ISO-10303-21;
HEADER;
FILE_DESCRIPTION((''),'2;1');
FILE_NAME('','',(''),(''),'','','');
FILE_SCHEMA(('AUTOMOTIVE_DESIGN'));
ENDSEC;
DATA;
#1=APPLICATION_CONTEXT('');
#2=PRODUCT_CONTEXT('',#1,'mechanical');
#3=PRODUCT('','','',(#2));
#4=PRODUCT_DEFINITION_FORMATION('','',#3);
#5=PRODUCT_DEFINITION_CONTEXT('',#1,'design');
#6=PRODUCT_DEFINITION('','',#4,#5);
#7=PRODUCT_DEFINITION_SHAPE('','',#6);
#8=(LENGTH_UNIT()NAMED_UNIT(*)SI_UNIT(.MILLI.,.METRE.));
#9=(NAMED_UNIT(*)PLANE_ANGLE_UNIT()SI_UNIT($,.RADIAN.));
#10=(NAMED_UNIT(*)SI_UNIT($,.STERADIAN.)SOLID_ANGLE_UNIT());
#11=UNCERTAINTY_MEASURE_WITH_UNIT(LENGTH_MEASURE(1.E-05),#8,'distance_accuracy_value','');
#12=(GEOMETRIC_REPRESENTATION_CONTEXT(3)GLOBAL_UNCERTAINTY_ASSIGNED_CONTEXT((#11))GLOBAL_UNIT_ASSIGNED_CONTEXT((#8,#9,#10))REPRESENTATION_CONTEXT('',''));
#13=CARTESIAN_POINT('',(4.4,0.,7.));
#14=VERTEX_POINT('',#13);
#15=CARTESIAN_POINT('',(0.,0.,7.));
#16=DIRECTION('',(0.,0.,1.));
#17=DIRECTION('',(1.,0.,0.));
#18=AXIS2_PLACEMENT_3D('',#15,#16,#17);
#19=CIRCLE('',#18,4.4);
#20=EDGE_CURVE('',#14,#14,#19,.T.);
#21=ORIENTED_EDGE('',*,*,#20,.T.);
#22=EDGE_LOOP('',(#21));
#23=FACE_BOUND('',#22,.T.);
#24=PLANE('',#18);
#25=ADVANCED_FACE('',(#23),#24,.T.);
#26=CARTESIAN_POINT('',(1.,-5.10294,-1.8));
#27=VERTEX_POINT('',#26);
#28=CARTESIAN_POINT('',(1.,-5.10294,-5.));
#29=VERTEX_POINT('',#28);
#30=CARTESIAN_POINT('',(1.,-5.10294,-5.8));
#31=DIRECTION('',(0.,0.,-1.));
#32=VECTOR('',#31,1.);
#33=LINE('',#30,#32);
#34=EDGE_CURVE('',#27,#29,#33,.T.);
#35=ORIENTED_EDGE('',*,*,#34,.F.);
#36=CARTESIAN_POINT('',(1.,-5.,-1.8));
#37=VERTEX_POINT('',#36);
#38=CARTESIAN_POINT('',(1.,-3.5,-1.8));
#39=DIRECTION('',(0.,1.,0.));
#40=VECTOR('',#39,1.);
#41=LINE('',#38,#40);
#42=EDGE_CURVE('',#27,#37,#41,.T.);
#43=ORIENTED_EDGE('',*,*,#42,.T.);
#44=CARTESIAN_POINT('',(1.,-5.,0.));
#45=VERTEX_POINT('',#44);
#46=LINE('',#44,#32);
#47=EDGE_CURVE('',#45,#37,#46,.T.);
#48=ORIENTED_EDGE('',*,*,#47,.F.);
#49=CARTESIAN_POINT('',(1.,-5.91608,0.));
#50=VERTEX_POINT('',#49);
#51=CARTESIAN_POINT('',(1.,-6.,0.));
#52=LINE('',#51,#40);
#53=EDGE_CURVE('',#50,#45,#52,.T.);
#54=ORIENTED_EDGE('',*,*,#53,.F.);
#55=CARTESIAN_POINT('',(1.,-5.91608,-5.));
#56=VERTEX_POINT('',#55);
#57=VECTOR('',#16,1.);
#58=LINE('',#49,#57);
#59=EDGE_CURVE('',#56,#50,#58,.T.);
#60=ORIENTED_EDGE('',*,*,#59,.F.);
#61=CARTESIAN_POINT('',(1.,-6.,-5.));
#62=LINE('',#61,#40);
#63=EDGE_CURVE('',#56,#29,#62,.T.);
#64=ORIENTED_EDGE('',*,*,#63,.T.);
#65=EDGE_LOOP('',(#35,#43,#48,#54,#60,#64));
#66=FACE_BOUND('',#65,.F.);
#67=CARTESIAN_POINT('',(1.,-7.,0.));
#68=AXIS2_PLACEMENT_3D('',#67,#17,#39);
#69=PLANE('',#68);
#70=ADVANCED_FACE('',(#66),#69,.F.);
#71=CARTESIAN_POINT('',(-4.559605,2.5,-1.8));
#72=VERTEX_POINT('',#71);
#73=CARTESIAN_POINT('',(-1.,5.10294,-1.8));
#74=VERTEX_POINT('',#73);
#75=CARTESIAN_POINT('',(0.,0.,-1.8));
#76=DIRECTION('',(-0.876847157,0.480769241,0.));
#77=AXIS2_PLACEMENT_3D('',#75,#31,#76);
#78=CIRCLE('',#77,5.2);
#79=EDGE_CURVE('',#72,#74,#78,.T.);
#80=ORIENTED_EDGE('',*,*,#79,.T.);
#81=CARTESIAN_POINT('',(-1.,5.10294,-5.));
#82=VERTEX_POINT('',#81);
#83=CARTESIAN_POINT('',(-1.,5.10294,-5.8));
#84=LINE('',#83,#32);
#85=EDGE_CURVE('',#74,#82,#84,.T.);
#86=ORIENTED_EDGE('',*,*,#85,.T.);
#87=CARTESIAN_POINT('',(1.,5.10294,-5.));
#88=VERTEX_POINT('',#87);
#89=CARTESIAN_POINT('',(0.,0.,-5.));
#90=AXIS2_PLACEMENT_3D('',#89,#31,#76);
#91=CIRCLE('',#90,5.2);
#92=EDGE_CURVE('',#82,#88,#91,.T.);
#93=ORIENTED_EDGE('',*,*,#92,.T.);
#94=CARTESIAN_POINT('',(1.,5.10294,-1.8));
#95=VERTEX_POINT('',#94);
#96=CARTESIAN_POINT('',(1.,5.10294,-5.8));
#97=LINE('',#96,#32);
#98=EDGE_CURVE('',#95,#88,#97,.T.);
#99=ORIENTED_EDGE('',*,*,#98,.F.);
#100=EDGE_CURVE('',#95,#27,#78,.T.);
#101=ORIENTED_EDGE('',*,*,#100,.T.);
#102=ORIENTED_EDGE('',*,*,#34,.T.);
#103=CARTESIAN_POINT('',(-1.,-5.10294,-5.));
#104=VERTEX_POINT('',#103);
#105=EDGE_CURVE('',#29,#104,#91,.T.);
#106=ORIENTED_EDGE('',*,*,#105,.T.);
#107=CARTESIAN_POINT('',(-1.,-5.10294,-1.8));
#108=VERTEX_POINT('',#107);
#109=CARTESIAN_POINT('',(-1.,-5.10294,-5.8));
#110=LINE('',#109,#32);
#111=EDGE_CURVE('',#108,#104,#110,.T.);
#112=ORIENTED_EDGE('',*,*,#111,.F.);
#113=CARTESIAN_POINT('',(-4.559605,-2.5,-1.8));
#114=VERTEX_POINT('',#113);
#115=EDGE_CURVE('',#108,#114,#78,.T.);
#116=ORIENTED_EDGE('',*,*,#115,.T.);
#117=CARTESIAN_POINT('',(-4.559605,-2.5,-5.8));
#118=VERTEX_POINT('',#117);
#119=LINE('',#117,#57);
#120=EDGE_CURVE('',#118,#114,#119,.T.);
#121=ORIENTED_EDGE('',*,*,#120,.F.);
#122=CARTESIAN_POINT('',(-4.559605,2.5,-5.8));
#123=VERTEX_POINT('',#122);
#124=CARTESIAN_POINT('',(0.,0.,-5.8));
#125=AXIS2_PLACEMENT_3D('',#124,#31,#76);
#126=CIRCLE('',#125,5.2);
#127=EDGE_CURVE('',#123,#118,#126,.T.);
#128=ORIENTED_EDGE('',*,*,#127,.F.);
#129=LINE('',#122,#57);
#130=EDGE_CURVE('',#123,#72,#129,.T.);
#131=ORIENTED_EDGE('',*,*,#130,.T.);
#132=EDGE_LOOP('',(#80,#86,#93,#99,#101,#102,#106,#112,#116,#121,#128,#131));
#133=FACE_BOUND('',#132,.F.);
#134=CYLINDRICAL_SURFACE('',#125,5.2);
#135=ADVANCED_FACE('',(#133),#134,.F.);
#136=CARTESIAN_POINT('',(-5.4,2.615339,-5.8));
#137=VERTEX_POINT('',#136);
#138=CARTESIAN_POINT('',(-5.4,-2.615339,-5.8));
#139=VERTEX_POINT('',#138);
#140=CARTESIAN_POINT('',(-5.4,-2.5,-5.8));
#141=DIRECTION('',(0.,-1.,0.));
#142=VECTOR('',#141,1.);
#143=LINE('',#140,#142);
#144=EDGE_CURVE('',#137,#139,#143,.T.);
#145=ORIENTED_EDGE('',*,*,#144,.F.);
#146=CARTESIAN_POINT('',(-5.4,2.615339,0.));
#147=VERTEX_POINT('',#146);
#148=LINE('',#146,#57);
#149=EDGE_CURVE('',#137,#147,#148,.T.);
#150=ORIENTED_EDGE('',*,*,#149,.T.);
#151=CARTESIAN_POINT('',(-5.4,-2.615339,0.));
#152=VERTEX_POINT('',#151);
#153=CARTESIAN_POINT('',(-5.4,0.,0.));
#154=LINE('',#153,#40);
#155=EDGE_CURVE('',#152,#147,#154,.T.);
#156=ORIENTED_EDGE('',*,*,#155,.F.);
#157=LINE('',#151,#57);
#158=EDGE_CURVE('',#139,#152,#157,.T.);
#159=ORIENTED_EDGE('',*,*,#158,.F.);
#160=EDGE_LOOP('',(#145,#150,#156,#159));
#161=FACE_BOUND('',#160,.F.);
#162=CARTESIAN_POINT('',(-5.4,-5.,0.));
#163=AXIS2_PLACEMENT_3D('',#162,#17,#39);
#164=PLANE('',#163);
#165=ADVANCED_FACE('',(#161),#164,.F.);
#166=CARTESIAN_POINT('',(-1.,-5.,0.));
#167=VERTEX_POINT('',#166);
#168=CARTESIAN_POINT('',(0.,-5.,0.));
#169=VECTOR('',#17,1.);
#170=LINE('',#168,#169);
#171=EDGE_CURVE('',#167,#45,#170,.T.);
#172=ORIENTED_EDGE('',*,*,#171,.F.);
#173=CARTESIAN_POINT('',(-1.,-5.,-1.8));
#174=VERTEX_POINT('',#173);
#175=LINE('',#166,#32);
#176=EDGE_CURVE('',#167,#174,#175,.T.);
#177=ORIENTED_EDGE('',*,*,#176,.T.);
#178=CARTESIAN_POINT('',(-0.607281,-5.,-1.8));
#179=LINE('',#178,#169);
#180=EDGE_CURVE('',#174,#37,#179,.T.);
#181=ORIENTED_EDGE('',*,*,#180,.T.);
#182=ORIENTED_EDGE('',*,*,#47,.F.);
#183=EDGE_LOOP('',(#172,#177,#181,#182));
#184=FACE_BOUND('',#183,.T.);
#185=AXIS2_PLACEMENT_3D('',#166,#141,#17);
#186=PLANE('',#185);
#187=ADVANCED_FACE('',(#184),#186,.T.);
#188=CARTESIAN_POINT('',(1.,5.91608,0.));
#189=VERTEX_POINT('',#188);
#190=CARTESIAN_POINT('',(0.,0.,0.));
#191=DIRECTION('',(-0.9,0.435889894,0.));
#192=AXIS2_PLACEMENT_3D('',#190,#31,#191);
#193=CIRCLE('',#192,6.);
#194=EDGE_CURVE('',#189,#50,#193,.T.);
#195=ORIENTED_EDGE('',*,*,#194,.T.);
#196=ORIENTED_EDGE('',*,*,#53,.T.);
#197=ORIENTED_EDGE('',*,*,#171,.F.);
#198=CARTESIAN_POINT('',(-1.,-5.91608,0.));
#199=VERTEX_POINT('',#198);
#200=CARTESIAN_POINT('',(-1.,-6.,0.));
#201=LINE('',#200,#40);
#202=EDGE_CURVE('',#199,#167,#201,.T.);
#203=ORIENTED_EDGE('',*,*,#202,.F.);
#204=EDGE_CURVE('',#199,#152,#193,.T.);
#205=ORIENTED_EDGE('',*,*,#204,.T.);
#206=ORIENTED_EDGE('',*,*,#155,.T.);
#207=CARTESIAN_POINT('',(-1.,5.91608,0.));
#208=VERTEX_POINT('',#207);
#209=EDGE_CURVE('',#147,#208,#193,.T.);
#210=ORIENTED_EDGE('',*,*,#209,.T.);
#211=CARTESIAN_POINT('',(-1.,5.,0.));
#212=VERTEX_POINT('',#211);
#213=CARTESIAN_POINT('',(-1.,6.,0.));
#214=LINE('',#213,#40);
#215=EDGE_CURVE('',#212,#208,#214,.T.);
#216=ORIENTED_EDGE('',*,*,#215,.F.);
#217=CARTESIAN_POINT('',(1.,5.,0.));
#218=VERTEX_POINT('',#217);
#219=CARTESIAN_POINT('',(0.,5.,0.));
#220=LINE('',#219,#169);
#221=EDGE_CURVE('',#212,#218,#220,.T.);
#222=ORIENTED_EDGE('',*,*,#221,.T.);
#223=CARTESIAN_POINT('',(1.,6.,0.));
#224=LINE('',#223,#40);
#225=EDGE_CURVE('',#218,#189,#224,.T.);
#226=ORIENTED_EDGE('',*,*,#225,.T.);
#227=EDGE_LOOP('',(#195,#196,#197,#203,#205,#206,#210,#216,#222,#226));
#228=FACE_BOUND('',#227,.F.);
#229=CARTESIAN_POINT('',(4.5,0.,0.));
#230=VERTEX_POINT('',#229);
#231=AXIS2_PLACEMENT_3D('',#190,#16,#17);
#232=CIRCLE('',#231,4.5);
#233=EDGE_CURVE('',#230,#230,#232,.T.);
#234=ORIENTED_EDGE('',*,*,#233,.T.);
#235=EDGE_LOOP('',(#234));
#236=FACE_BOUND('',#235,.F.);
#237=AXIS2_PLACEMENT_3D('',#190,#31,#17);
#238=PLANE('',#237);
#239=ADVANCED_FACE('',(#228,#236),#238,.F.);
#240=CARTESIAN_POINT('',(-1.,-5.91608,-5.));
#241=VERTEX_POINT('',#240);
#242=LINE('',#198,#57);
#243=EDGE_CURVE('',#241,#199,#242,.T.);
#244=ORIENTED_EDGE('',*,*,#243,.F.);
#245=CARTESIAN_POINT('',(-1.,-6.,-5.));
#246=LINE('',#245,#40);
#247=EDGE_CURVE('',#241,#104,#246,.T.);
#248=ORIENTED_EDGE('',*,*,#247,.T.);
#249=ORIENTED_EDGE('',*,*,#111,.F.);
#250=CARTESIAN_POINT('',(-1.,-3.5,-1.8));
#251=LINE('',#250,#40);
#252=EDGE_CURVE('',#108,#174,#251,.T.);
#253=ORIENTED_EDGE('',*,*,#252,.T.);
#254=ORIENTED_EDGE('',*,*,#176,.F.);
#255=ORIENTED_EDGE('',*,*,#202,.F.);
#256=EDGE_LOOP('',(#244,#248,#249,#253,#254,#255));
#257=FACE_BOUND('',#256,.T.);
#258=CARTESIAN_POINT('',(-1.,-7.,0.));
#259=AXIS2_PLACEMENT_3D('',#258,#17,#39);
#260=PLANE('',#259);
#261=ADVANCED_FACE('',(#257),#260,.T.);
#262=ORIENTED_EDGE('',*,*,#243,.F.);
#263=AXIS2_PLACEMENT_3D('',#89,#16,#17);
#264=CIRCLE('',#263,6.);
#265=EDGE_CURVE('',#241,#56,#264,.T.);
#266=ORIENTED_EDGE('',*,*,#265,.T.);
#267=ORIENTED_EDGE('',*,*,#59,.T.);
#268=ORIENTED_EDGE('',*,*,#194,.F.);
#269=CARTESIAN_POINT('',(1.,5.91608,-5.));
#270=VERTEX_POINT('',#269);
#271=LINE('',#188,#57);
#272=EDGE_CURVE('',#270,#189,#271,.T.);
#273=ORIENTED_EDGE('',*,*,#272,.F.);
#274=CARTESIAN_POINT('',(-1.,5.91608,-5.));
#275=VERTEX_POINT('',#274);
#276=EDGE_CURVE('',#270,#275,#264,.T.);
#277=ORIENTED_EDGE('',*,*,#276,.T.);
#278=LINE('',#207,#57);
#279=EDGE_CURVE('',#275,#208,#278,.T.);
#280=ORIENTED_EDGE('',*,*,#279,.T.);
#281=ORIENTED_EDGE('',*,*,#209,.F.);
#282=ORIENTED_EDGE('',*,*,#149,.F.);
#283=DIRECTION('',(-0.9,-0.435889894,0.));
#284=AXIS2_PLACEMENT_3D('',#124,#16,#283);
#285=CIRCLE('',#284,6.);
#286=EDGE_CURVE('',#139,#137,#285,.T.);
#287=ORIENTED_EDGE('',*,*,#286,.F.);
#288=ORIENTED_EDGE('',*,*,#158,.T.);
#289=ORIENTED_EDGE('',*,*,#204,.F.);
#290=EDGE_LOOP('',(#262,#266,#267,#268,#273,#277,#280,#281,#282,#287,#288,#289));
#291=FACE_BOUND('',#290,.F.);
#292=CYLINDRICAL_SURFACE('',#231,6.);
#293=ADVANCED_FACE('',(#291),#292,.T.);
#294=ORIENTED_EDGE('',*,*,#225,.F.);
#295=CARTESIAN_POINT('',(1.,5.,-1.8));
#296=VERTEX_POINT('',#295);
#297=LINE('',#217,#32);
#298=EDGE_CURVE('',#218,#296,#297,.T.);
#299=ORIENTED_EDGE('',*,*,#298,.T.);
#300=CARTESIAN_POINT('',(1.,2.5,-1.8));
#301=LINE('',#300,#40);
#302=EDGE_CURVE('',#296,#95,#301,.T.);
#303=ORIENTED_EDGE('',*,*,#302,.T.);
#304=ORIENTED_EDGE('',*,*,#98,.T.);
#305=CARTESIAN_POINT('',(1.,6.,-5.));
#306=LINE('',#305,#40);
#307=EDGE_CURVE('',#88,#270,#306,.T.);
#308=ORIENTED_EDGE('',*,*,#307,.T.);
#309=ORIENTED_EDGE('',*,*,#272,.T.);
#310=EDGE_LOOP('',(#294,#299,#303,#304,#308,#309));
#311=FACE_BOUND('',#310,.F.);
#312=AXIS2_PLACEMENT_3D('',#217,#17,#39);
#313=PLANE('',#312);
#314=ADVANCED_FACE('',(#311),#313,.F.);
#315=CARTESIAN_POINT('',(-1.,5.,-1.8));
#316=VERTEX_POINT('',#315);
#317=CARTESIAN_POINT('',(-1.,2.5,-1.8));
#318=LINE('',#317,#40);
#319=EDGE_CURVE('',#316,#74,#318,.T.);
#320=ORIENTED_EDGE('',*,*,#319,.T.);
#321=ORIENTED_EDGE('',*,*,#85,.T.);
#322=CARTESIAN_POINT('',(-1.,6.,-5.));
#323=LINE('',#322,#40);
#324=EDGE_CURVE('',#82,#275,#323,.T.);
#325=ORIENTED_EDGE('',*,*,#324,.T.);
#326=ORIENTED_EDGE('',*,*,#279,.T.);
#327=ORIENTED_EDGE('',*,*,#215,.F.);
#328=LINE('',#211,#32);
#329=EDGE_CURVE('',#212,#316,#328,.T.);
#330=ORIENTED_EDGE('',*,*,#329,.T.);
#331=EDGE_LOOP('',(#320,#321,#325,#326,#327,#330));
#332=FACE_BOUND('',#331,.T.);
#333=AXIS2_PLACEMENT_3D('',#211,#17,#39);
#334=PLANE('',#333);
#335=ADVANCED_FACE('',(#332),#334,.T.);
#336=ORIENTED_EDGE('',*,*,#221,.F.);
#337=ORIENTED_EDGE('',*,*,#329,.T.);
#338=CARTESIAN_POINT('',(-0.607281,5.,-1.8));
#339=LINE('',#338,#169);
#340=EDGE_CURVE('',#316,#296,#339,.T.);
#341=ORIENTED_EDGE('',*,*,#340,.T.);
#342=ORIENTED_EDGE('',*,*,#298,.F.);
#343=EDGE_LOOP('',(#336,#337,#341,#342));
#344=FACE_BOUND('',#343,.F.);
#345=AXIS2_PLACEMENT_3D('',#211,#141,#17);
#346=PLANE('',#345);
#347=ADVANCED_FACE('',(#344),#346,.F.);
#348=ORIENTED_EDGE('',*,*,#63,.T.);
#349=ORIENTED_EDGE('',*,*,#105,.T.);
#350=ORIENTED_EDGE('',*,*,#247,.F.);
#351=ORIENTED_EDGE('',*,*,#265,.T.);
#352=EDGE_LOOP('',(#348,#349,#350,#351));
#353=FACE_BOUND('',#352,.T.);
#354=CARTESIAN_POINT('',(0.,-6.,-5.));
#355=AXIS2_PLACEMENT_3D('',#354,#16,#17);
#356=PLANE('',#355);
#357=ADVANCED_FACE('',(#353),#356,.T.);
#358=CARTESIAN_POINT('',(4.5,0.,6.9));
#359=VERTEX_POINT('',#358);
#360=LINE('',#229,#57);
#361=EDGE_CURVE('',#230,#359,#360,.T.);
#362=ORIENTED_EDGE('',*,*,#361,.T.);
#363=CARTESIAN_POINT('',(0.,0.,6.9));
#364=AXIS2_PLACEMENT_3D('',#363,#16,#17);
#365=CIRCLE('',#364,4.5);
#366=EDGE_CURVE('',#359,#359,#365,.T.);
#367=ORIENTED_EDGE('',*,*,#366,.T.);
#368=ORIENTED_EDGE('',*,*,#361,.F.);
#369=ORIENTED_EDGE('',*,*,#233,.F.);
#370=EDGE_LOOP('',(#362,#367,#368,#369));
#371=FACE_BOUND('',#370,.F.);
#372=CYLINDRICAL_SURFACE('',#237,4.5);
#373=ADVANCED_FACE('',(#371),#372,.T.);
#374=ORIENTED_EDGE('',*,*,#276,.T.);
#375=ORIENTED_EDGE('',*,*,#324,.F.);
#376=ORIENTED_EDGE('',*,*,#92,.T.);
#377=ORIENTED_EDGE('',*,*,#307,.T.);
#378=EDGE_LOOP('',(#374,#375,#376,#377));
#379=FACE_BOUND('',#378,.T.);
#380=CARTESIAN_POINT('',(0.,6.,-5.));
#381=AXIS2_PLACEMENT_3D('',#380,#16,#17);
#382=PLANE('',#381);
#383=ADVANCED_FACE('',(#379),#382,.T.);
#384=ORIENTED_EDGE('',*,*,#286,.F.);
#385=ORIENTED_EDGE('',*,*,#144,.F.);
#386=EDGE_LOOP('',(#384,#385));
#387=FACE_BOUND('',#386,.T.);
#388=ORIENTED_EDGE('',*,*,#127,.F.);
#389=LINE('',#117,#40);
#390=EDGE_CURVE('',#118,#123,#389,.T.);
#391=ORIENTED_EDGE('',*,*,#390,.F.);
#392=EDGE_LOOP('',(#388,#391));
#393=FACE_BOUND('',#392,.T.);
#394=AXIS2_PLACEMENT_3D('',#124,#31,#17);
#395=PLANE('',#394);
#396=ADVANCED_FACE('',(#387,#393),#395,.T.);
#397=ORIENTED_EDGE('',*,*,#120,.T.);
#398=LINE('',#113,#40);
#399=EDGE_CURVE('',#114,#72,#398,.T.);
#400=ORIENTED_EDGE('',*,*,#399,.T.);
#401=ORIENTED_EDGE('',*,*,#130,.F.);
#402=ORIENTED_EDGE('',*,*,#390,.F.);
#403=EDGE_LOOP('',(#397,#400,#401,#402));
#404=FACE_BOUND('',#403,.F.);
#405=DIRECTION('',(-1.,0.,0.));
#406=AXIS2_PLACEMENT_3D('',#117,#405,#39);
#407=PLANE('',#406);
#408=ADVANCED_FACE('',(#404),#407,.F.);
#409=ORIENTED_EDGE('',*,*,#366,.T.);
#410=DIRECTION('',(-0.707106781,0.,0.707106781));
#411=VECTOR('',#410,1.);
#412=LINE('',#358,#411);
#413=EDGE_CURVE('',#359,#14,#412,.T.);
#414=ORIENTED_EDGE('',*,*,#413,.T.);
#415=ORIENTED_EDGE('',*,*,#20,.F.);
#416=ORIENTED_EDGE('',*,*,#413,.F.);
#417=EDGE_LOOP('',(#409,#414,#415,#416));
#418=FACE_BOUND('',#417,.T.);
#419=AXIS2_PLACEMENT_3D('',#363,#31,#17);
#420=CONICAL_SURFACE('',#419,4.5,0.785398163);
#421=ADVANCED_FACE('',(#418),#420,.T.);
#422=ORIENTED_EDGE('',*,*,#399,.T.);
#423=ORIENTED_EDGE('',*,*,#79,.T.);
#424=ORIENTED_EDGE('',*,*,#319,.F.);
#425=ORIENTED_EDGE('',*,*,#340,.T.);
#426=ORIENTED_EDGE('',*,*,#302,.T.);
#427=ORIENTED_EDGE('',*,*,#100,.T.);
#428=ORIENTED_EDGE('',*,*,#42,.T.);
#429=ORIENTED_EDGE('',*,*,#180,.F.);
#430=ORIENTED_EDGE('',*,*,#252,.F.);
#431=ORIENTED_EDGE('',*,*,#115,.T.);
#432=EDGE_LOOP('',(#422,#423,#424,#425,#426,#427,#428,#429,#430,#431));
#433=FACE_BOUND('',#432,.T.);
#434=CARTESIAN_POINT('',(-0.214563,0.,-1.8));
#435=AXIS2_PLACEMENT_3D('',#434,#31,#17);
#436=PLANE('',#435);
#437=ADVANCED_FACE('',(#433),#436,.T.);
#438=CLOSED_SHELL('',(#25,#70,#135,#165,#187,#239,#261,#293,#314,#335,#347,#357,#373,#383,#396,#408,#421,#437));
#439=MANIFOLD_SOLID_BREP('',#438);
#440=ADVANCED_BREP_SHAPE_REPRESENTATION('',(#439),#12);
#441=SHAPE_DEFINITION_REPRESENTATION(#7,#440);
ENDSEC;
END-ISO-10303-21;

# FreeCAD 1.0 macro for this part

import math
import FreeCAD as App
import Part
import Sketcher

V = App.Vector


def edges_at(feature, points):
    """Names of the edges that pass closest to the given points."""
    edges = feature.Shape.Edges
    near = lambda p: min(range(len(edges)), key=lambda i: edges[i].distToShape(Part.Vertex(*p))[0])
    return sorted({f"Edge{near(p) + 1}" for p in points})


def add_polygon(sketch, points):
    """Adds a closed chain of lines whose ends are joined by coincident constraints."""
    first, n = sketch.GeometryCount, len(points)
    for a, b in zip(points, points[1:] + points[:1]):
        sketch.addGeometry(Part.LineSegment(App.Vector(*a, 0), App.Vector(*b, 0)), False)
    for i in range(n):
        sketch.addConstraint(Sketcher.Constraint("Coincident", first + i, 2, first + (i + 1) % n, 1))

doc = App.newDocument("Part")
body = doc.addObject("PartDesign::Body", "Body")

# Sketch on XY plane
sketch1 = body.newObject("Sketcher::SketchObject", "Sketch")
sketch1.AttachmentSupport = (doc.getObject("XY_Plane"), [""])
sketch1.MapMode = "FlatFace"
sketch1.addGeometry(Part.Circle(V(0, 0, 0), V(0, 0, 1), 4.5), False)
sketch1.addConstraint([
    Sketcher.Constraint("Coincident", 0, 3, -1, 1),
    Sketcher.Constraint("Diameter", 0, 9.0),
])
pad1 = body.newObject("PartDesign::Pad", "Pad")
pad1.Profile = sketch1
pad1.Length = 7

# Sketch on XY plane
sketch2 = body.newObject("Sketcher::SketchObject", "Sketch001")
sketch2.AttachmentSupport = (doc.getObject("XY_Plane"), [""])
sketch2.MapMode = "FlatFace"
sketch2.addGeometry(Part.Circle(V(0, 0, 0), V(0, 0, 1), 6), False)
sketch2.addConstraint([
    Sketcher.Constraint("Coincident", 0, 3, -1, 1),
    Sketcher.Constraint("Diameter", 0, 12.0),
])
pad2 = body.newObject("PartDesign::Pad", "Pad001")
pad2.Profile = sketch2
pad2.Length = 5.8
pad2.Reversed = True

# Sketch on XY plane
sketch3 = body.newObject("Sketcher::SketchObject", "Sketch002")
sketch3.AttachmentSupport = (doc.getObject("XY_Plane"), [""])
sketch3.MapMode = "FlatFace"
add_polygon(sketch3, [(-7.4, 5), (-7.4, -5), (-5.4, -5), (-5.4, 5)])  # lines 0-3
sketch3.addConstraint([
    Sketcher.Constraint("Vertical", 0),
    Sketcher.Constraint("Horizontal", 1),
    Sketcher.Constraint("Vertical", 2),
    Sketcher.Constraint("Horizontal", 3),
    Sketcher.Constraint("DistanceX", 1, 1, 1, 2, 2.0),
    Sketcher.Constraint("DistanceY", 0, 2, 0, 1, 10.0),
    Sketcher.Constraint("DistanceY", 0, 2, -1, 1, 5.0),
    Sketcher.Constraint("DistanceX", 0, 2, -1, 1, 7.4),
])
pocket1 = body.newObject("PartDesign::Pocket", "Pocket")
pocket1.Profile = sketch3
pocket1.Length = 7
doc.recompute()

chamfer = body.newObject("PartDesign::Chamfer", "Chamfer")
chamfer.Base = (pocket1, edges_at(pocket1, [(-4.5, 0, 7)]))
chamfer.Size = 0.1

# Sketch on XY plane
sketch4 = body.newObject("Sketcher::SketchObject", "Sketch003")
sketch4.AttachmentSupport = (doc.getObject("XY_Plane"), [""])
sketch4.MapMode = "FlatFace"
add_polygon(sketch4, [(-1, 7), (-1, 5), (1, 5), (1, 7)])  # lines 0-3
add_polygon(sketch4, [(-1, -5), (-1, -7), (1, -7), (1, -5)])  # lines 4-7
sketch4.addConstraint([
    Sketcher.Constraint("Vertical", 0),
    Sketcher.Constraint("Horizontal", 1),
    Sketcher.Constraint("Vertical", 2),
    Sketcher.Constraint("Horizontal", 3),
    Sketcher.Constraint("Vertical", 4),
    Sketcher.Constraint("Horizontal", 5),
    Sketcher.Constraint("Vertical", 6),
    Sketcher.Constraint("Horizontal", 7),
    Sketcher.Constraint("Symmetric", 2, 2, 4, 2, -1, 1),
    Sketcher.Constraint("Symmetric", 0, 2, 6, 2, -1, 1),
    Sketcher.Constraint("Vertical", 3, 2, 4, 2),
    Sketcher.Constraint("Equal", 7, 0),
    Sketcher.Constraint("DistanceX", 1, 1, 1, 2, 2.0),
    Sketcher.Constraint("DistanceY", -1, 1, 0, 2, 5.0),
])
pocket2 = body.newObject("PartDesign::Pocket", "Pocket001")
pocket2.Profile = sketch4
pocket2.Length = 5

# Sketch on XY plane
sketch5 = body.newObject("Sketcher::SketchObject", "Sketch004")
sketch5.AttachmentSupport = (doc.getObject("XY_Plane"), [""])
sketch5.MapMode = "FlatFace"
sketch5.AttachmentOffset = App.Placement(V(0, 0, -5.8), App.Rotation())
sketch5.addGeometry([
    Part.ArcOfCircle(Part.Circle(V(0, 0, 0), V(0, 0, 1), 5), math.radians(-151), math.radians(151)),
    Part.LineSegment(V(-5, -2, 0), V(-5, 2, 0)),
], False)
sketch5.addConstraint([
    Sketcher.Constraint("Coincident", 0, 1, 1, 1),
    Sketcher.Constraint("Coincident", 1, 2, 0, 2),
    Sketcher.Constraint("Vertical", 1),
    Sketcher.Constraint("Coincident", 0, 3, -1, 1),
    Sketcher.Constraint("Radius", 0, 5.2),
    Sketcher.Constraint("DistanceY", 1, 1, 1, 2, 5.0),
])
pocket3 = body.newObject("PartDesign::Pocket", "Pocket002")
pocket3.Profile = sketch5
pocket3.Length = 4
pocket3.Reversed = True

doc.recompute()
